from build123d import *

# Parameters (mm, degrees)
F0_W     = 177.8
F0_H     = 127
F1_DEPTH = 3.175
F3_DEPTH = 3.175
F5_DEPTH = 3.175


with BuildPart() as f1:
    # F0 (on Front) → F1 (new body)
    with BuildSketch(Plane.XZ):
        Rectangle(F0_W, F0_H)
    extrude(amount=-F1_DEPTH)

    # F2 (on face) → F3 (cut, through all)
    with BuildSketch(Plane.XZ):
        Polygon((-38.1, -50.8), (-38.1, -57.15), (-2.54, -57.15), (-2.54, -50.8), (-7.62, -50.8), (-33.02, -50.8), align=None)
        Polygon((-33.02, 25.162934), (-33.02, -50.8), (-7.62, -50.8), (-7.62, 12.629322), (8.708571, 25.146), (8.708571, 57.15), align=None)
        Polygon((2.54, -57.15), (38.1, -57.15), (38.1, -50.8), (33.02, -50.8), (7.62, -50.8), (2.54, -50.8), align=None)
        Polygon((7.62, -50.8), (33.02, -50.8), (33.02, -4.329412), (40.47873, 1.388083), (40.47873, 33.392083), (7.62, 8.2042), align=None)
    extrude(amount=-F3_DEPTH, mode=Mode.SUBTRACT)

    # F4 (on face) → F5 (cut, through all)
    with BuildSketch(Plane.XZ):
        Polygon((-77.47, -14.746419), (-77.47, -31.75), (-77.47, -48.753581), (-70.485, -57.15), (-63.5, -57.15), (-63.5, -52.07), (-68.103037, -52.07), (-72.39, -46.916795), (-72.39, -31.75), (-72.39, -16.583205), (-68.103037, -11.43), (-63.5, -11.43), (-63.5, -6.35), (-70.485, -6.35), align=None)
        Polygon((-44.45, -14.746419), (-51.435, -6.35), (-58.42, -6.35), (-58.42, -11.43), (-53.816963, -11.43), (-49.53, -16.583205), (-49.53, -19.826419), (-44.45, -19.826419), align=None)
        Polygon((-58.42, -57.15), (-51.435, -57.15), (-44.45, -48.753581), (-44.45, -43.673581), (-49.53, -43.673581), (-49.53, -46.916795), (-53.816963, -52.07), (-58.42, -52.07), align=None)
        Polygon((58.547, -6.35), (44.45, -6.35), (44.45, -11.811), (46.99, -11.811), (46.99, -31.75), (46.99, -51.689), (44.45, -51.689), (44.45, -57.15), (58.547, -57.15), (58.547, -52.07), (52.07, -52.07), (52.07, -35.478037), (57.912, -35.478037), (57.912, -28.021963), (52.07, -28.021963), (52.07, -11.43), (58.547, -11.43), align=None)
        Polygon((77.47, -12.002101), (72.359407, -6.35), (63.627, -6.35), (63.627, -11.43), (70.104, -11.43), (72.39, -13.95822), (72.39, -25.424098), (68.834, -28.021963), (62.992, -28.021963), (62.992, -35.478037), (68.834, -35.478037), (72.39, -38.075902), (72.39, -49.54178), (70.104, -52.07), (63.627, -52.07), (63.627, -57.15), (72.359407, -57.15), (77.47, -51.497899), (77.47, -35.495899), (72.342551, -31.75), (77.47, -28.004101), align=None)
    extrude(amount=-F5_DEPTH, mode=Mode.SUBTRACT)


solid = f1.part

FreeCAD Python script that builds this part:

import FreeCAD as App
import Part
import Sketcher

V = App.Vector
Q = App.Units.Quantity

doc = App.newDocument("Part")
body = doc.addObject("PartDesign::Body", "Body")

# Sketch on XZ plane
sketch1 = body.newObject("Sketcher::SketchObject", "Sketch")
sketch1.AttachmentSupport = (doc.getObject("XZ_Plane"), [""])
sketch1.MapMode = "FlatFace"
sketch1.addGeometry([
    Part.LineSegment(V(-89, 64, 0), V(-89, -64, 0)),
    Part.LineSegment(V(-89, -64, 0), V(89, -64, 0)),
    Part.LineSegment(V(89, -64, 0), V(89, 64, 0)),
    Part.LineSegment(V(89, 64, 0), V(-89, 64, 0)),
], False)
sketch1.addConstraint([
    Sketcher.Constraint("Coincident", 0, 2, 1, 1),
    Sketcher.Constraint("Coincident", 1, 2, 2, 1),
    Sketcher.Constraint("Coincident", 2, 2, 3, 1),
    Sketcher.Constraint("Coincident", 3, 2, 0, 1),
    Sketcher.Constraint("Vertical", 0),
    Sketcher.Constraint("Horizontal", 1),
    Sketcher.Constraint("Vertical", 2),
    Sketcher.Constraint("Horizontal", 3),
    Sketcher.Constraint("Symmetric", 0, 2, 2, 2, -1, 1),
    Sketcher.Constraint("DistanceX", 1, 1, 1, 2, Q("7 in")),
    Sketcher.Constraint("DistanceY", 0, 2, 0, 1, Q("5 in")),
])
pad1 = body.newObject("PartDesign::Pad", "Pad")
pad1.Profile = sketch1
pad1.Length = Q("0.125 in")
pad1.Reversed = True

# Sketch on XZ plane
sketch2 = body.newObject("Sketcher::SketchObject", "Sketch001")
sketch2.AttachmentSupport = (doc.getObject("XZ_Plane"), [""])
sketch2.MapMode = "FlatFace"
sketch2.addGeometry([
    Part.LineSegment(V(-38, -51, 0), V(-38, -57, 0)),  # 0
    Part.LineSegment(V(-38, -57, 0), V(-3, -57, 0)),  # 1
    Part.LineSegment(V(-3, -57, 0), V(-3, -51, 0)),  # 2
    Part.LineSegment(V(-3, -51, 0), V(-8, -51, 0)),  # 3
    Part.LineSegment(V(-8, -51, 0), V(-8, 13, 0)),  # 4
    Part.LineSegment(V(-8, 13, 0), V(9, 25, 0)),  # 5
    Part.LineSegment(V(9, 25, 0), V(9, 57, 0)),  # 6
    Part.LineSegment(V(9, 57, 0), V(-33, 25, 0)),  # 7
    Part.LineSegment(V(-33, 25, 0), V(-33, -51, 0)),  # 8
    Part.LineSegment(V(-33, -51, 0), V(-38, -51, 0)),  # 9
    Part.LineSegment(V(3, -57, 0), V(38, -57, 0)),  # 10
    Part.LineSegment(V(38, -57, 0), V(38, -51, 0)),  # 11
    Part.LineSegment(V(38, -51, 0), V(33, -51, 0)),  # 12
    Part.LineSegment(V(33, -51, 0), V(33, -4, 0)),  # 13
    Part.LineSegment(V(33, -4, 0), V(40, 1, 0)),  # 14
    Part.LineSegment(V(40, 1, 0), V(40, 33, 0)),  # 15
    Part.LineSegment(V(40, 33, 0), V(8, 8, 0)),  # 16
    Part.LineSegment(V(8, 8, 0), V(8, -51, 0)),  # 17
    Part.LineSegment(V(8, -51, 0), V(3, -51, 0)),  # 18
    Part.LineSegment(V(3, -51, 0), V(3, -57, 0)),  # 19
], False)
sketch2.addConstraint([
    Sketcher.Constraint("Coincident", 0, 2, 1, 1),
    Sketcher.Constraint("Coincident", 1, 2, 2, 1),
    Sketcher.Constraint("Coincident", 2, 2, 3, 1),
    Sketcher.Constraint("Coincident", 3, 2, 4, 1),
    Sketcher.Constraint("Coincident", 4, 2, 5, 1),
    Sketcher.Constraint("Coincident", 5, 2, 6, 1),
    Sketcher.Constraint("Coincident", 6, 2, 7, 1),
    Sketcher.Constraint("Coincident", 7, 2, 8, 1),
    Sketcher.Constraint("Coincident", 8, 2, 9, 1),
    Sketcher.Constraint("Coincident", 9, 2, 0, 1),
    Sketcher.Constraint("Coincident", 10, 2, 11, 1),
    Sketcher.Constraint("Coincident", 11, 2, 12, 1),
    Sketcher.Constraint("Coincident", 12, 2, 13, 1),
    Sketcher.Constraint("Coincident", 13, 2, 14, 1),
    Sketcher.Constraint("Coincident", 14, 2, 15, 1),
    Sketcher.Constraint("Coincident", 15, 2, 16, 1),
    Sketcher.Constraint("Coincident", 16, 2, 17, 1),
    Sketcher.Constraint("Coincident", 17, 2, 18, 1),
    Sketcher.Constraint("Coincident", 18, 2, 19, 1),
    Sketcher.Constraint("Coincident", 19, 2, 10, 1),
    Sketcher.Constraint("Vertical", 0),
    Sketcher.Constraint("Horizontal", 1),
    Sketcher.Constraint("Vertical", 2),
    Sketcher.Constraint("Horizontal", 3),
    Sketcher.Constraint("Vertical", 4),
    Sketcher.Constraint("Vertical", 6),
    Sketcher.Constraint("Vertical", 8),
    Sketcher.Constraint("Horizontal", 9),
    Sketcher.Constraint("Horizontal", 10),
    Sketcher.Constraint("Vertical", 11),
    Sketcher.Constraint("Horizontal", 12),
    Sketcher.Constraint("Vertical", 13),
    Sketcher.Constraint("Vertical", 15),
    Sketcher.Constraint("Vertical", 17),
    Sketcher.Constraint("Horizontal", 18),
    Sketcher.Constraint("Vertical", 19),
    Sketcher.Constraint("Symmetric", 0, 2, 10, 2, -2),
    Sketcher.Constraint("Symmetric", 8, 2, 12, 2, -2),
    Sketcher.Constraint("Symmetric", 3, 2, 17, 2, -2),
    Sketcher.Constraint("Parallel", 5, 7),
    Sketcher.Constraint("Parallel", 7, 14),
    Sketcher.Constraint("Parallel", 14, 16),
    Sketcher.Constraint("Horizontal", 3, 2, 8, 2),
    Sketcher.Constraint("Equal", 3, 9),
    Sketcher.Constraint("Equal", 1, 10),
    Sketcher.Constraint("Equal", 6, 15),
    Sketcher.Constraint("DistanceX", 1, 1, 1, 2, Q("1.4 in")),
    Sketcher.Constraint("DistanceX", 3, 2, 3, 1, Q("0.2 in")),
    Sketcher.Constraint("DistanceY", 2, 2, -1, 1, Q("2 in")),
    Sketcher.Constraint("DistanceX", 0, 2, 10, 2, Q("3 in")),
    Sketcher.Constraint("DistanceY", 0, 2, 0, 1, Q("0.25 in")),
    Sketcher.Constraint("DistanceY", 6, 1, 6, 2, Q("1.26 in")),
    Sketcher.Constraint("DistanceY", 1, 2, 6, 2, Q("4.5 in")),
    Sketcher.Constraint("Distance", 5, Q("0.81 in")),
    Sketcher.Constraint("Distance", 7, Q("2.07 in")),
    Sketcher.Constraint("Distance", 14, Q("0.37 in")),
    Sketcher.Constraint("DistanceY", 17, 2, 17, 1, Q("2.323 in")),
])
pocket1 = body.newObject("PartDesign::Pocket", "Pocket")
pocket1.Profile = sketch2
pocket1.Type = "ThroughAll"

# Sketch on XZ plane
sketch3 = body.newObject("Sketcher::SketchObject", "Sketch002")
sketch3.AttachmentSupport = (doc.getObject("XZ_Plane"), [""])
sketch3.MapMode = "FlatFace"
sketch3.addGeometry([
    Part.LineSegment(V(-77.5, -14.7, 0), V(-77.5, -48.8, 0)),  # 0
    Part.LineSegment(V(-77.5, -48.8, 0), V(-70.5, -57.1, 0)),  # 1
    Part.LineSegment(V(-70.5, -57.1, 0), V(-63.5, -57.1, 0)),  # 2
    Part.LineSegment(V(-63.5, -57.1, 0), V(-63.5, -52.1, 0)),  # 3
    Part.LineSegment(V(-63.5, -52.1, 0), V(-68.1, -52.1, 0)),  # 4
    Part.LineSegment(V(-68.1, -52.1, 0), V(-72.4, -46.9, 0)),  # 5
    Part.LineSegment(V(-72.4, -46.9, 0), V(-72.4, -16.6, 0)),  # 6
    Part.LineSegment(V(-72.4, -16.6, 0), V(-68.1, -11.4, 0)),  # 7
    Part.LineSegment(V(-68.1, -11.4, 0), V(-63.5, -11.4, 0)),  # 8
    Part.LineSegment(V(-63.5, -11.4, 0), V(-63.5, -6.3, 0)),  # 9
    Part.LineSegment(V(-63.5, -6.3, 0), V(-70.5, -6.3, 0)),  # 10
    Part.LineSegment(V(-70.5, -6.3, 0), V(-77.5, -14.7, 0)),  # 11
    Part.LineSegment(V(-44.5, -14.7, 0), V(-51.4, -6.3, 0)),  # 12
    Part.LineSegment(V(-51.4, -6.3, 0), V(-58.4, -6.3, 0)),  # 13
    Part.LineSegment(V(-58.4, -6.3, 0), V(-58.4, -11.4, 0)),  # 14
    Part.LineSegment(V(-58.4, -11.4, 0), V(-53.8, -11.4, 0)),  # 15
    Part.LineSegment(V(-53.8, -11.4, 0), V(-49.5, -16.6, 0)),  # 16
    Part.LineSegment(V(-49.5, -16.6, 0), V(-49.5, -19.8, 0)),  # 17
    Part.LineSegment(V(-49.5, -19.8, 0), V(-44.5, -19.8, 0)),  # 18
    Part.LineSegment(V(-44.5, -19.8, 0), V(-44.5, -14.7, 0)),  # 19
    Part.LineSegment(V(-58.4, -57.1, 0), V(-51.4, -57.1, 0)),  # 20
    Part.LineSegment(V(-51.4, -57.1, 0), V(-44.5, -48.8, 0)),  # 21
    Part.LineSegment(V(-44.5, -48.8, 0), V(-44.5, -43.7, 0)),  # 22
    Part.LineSegment(V(-44.5, -43.7, 0), V(-49.5, -43.7, 0)),  # 23
    Part.LineSegment(V(-49.5, -43.7, 0), V(-49.5, -46.9, 0)),  # 24
    Part.LineSegment(V(-49.5, -46.9, 0), V(-53.8, -52.1, 0)),  # 25
    Part.LineSegment(V(-53.8, -52.1, 0), V(-58.4, -52.1, 0)),  # 26
    Part.LineSegment(V(-58.4, -52.1, 0), V(-58.4, -57.1, 0)),  # 27
    Part.LineSegment(V(58.5, -6.3, 0), V(44.5, -6.3, 0)),  # 28
    Part.LineSegment(V(44.5, -6.3, 0), V(44.5, -11.8, 0)),  # 29
    Part.LineSegment(V(44.5, -11.8, 0), V(47, -11.8, 0)),  # 30
    Part.LineSegment(V(47, -11.8, 0), V(47, -51.7, 0)),  # 31
    Part.LineSegment(V(47, -51.7, 0), V(44.5, -51.7, 0)),  # 32
    Part.LineSegment(V(44.5, -51.7, 0), V(44.5, -57.1, 0)),  # 33
    Part.LineSegment(V(44.5, -57.1, 0), V(58.5, -57.1, 0)),  # 34
    Part.LineSegment(V(58.5, -57.1, 0), V(58.5, -52.1, 0)),  # 35
    Part.LineSegment(V(58.5, -52.1, 0), V(52.1, -52.1, 0)),  # 36
    Part.LineSegment(V(52.1, -52.1, 0), V(52.1, -35.5, 0)),  # 37
    Part.LineSegment(V(52.1, -35.5, 0), V(57.9, -35.5, 0)),  # 38
    Part.LineSegment(V(57.9, -35.5, 0), V(57.9, -28, 0)),  # 39
    Part.LineSegment(V(57.9, -28, 0), V(52.1, -28, 0)),  # 40
    Part.LineSegment(V(52.1, -28, 0), V(52.1, -11.4, 0)),  # 41
    Part.LineSegment(V(52.1, -11.4, 0), V(58.5, -11.4, 0)),  # 42
    Part.LineSegment(V(58.5, -11.4, 0), V(58.5, -6.3, 0)),  # 43
    Part.LineSegment(V(77.5, -12, 0), V(72.4, -6.3, 0)),  # 44
    Part.LineSegment(V(72.4, -6.3, 0), V(63.6, -6.3, 0)),  # 45
    Part.LineSegment(V(63.6, -6.3, 0), V(63.6, -11.4, 0)),  # 46
    Part.LineSegment(V(63.6, -11.4, 0), V(70.1, -11.4, 0)),  # 47
    Part.LineSegment(V(70.1, -11.4, 0), V(72.4, -14, 0)),  # 48
    Part.LineSegment(V(72.4, -14, 0), V(72.4, -25.4, 0)),  # 49
    Part.LineSegment(V(72.4, -25.4, 0), V(68.8, -28, 0)),  # 50
    Part.LineSegment(V(68.8, -28, 0), V(63, -28, 0)),  # 51
    Part.LineSegment(V(63, -28, 0), V(63, -35.5, 0)),  # 52
    Part.LineSegment(V(63, -35.5, 0), V(68.8, -35.5, 0)),  # 53
    Part.LineSegment(V(68.8, -35.5, 0), V(72.4, -38.1, 0)),  # 54
    Part.LineSegment(V(72.4, -38.1, 0), V(72.4, -49.5, 0)),  # 55
    Part.LineSegment(V(72.4, -49.5, 0), V(70.1, -52.1, 0)),  # 56
    Part.LineSegment(V(70.1, -52.1, 0), V(63.6, -52.1, 0)),  # 57
    Part.LineSegment(V(63.6, -52.1, 0), V(63.6, -57.1, 0)),  # 58
    Part.LineSegment(V(63.6, -57.1, 0), V(72.4, -57.1, 0)),  # 59
    Part.LineSegment(V(72.4, -57.1, 0), V(77.5, -51.5, 0)),  # 60
    Part.LineSegment(V(77.5, -51.5, 0), V(77.5, -35.5, 0)),  # 61
    Part.LineSegment(V(77.5, -35.5, 0), V(72.3, -31.8, 0)),  # 62
    Part.LineSegment(V(72.3, -31.8, 0), V(77.5, -28, 0)),  # 63
    Part.LineSegment(V(77.5, -28, 0), V(77.5, -12, 0)),  # 64
], False)
sketch3.addConstraint([
    Sketcher.Constraint("Coincident", 0, 2, 1, 1),
    Sketcher.Constraint("Coincident", 1, 2, 2, 1),
    Sketcher.Constraint("Coincident", 2, 2, 3, 1),
    Sketcher.Constraint("Coincident", 3, 2, 4, 1),
    Sketcher.Constraint("Coincident", 4, 2, 5, 1),
    Sketcher.Constraint("Coincident", 5, 2, 6, 1),
    Sketcher.Constraint("Coincident", 6, 2, 7, 1),
    Sketcher.Constraint("Coincident", 7, 2, 8, 1),
    Sketcher.Constraint("Coincident", 8, 2, 9, 1),
    Sketcher.Constraint("Coincident", 9, 2, 10, 1),
    Sketcher.Constraint("Coincident", 10, 2, 11, 1),
    Sketcher.Constraint("Coincident", 11, 2, 0, 1),
    Sketcher.Constraint("Coincident", 12, 2, 13, 1),
    Sketcher.Constraint("Coincident", 13, 2, 14, 1),
    Sketcher.Constraint("Coincident", 14, 2, 15, 1),
    Sketcher.Constraint("Coincident", 15, 2, 16, 1),
    Sketcher.Constraint("Coincident", 16, 2, 17, 1),
    Sketcher.Constraint("Coincident", 17, 2, 18, 1),
    Sketcher.Constraint("Coincident", 18, 2, 19, 1),
    Sketcher.Constraint("Coincident", 19, 2, 12, 1),
    Sketcher.Constraint("Coincident", 20, 2, 21, 1),
    Sketcher.Constraint("Coincident", 21, 2, 22, 1),
    Sketcher.Constraint("Coincident", 22, 2, 23, 1),
    Sketcher.Constraint("Coincident", 23, 2, 24, 1),
    Sketcher.Constraint("Coincident", 24, 2, 25, 1),
    Sketcher.Constraint("Coincident", 25, 2, 26, 1),
    Sketcher.Constraint("Coincident", 26, 2, 27, 1),
    Sketcher.Constraint("Coincident", 27, 2, 20, 1),
    Sketcher.Constraint("Coincident", 28, 2, 29, 1),
    Sketcher.Constraint("Coincident", 29, 2, 30, 1),
    Sketcher.Constraint("Coincident", 30, 2, 31, 1),
    Sketcher.Constraint("Coincident", 31, 2, 32, 1),
    Sketcher.Constraint("Coincident", 32, 2, 33, 1),
    Sketcher.Constraint("Coincident", 33, 2, 34, 1),
    Sketcher.Constraint("Coincident", 34, 2, 35, 1),
    Sketcher.Constraint("Coincident", 35, 2, 36, 1),
    Sketcher.Constraint("Coincident", 36, 2, 37, 1),
    Sketcher.Constraint("Coincident", 37, 2, 38, 1),
    Sketcher.Constraint("Coincident", 38, 2, 39, 1),
    Sketcher.Constraint("Coincident", 39, 2, 40, 1),
    Sketcher.Constraint("Coincident", 40, 2, 41, 1),
    Sketcher.Constraint("Coincident", 41, 2, 42, 1),
    Sketcher.Constraint("Coincident", 42, 2, 43, 1),
    Sketcher.Constraint("Coincident", 43, 2, 28, 1),
    Sketcher.Constraint("Coincident", 44, 2, 45, 1),
    Sketcher.Constraint("Coincident", 45, 2, 46, 1),
    Sketcher.Constraint("Coincident", 46, 2, 47, 1),
    Sketcher.Constraint("Coincident", 47, 2, 48, 1),
    Sketcher.Constraint("Coincident", 48, 2, 49, 1),
    Sketcher.Constraint("Coincident", 49, 2, 50, 1),
    Sketcher.Constraint("Coincident", 50, 2, 51, 1),
    Sketcher.Constraint("Coincident", 51, 2, 52, 1),
    Sketcher.Constraint("Coincident", 52, 2, 53, 1),
    Sketcher.Constraint("Coincident", 53, 2, 54, 1),
    Sketcher.Constraint("Coincident", 54, 2, 55, 1),
    Sketcher.Constraint("Coincident", 55, 2, 56, 1),
    Sketcher.Constraint("Coincident", 56, 2, 57, 1),
    Sketcher.Constraint("Coincident", 57, 2, 58, 1),
    Sketcher.Constraint("Coincident", 58, 2, 59, 1),
    Sketcher.Constraint("Coincident", 59, 2, 60, 1),
    Sketcher.Constraint("Coincident", 60, 2, 61, 1),
    Sketcher.Constraint("Coincident", 61, 2, 62, 1),
    Sketcher.Constraint("Coincident", 62, 2, 63, 1),
    Sketcher.Constraint("Coincident", 63, 2, 64, 1),
    Sketcher.Constraint("Coincident", 64, 2, 44, 1),
    Sketcher.Constraint("Vertical", 0),
    Sketcher.Constraint("Horizontal", 2),
    Sketcher.Constraint("Vertical", 3),
    Sketcher.Constraint("Horizontal", 4),
    Sketcher.Constraint("Vertical", 6),
    Sketcher.Constraint("Horizontal", 8),
    Sketcher.Constraint("Vertical", 9),
    Sketcher.Constraint("Horizontal", 10),
    Sketcher.Constraint("Horizontal", 13),
    Sketcher.Constraint("Vertical", 14),
    Sketcher.Constraint("Horizontal", 15),
    Sketcher.Constraint("Vertical", 17),
    Sketcher.Constraint("Horizontal", 18),
    Sketcher.Constraint("Vertical", 19),
    Sketcher.Constraint("Horizontal", 20),
    Sketcher.Constraint("Vertical", 22),
    Sketcher.Constraint("Horizontal", 23),
    Sketcher.Constraint("Vertical", 24),
    Sketcher.Constraint("Horizontal", 26),
    Sketcher.Constraint("Vertical", 27),
    Sketcher.Constraint("Horizontal", 28),
    Sketcher.Constraint("Vertical", 29),
    Sketcher.Constraint("Horizontal", 30),
    Sketcher.Constraint("Vertical", 31),
    Sketcher.Constraint("Horizontal", 32),
    Sketcher.Constraint("Vertical", 33),
    Sketcher.Constraint("Horizontal", 34),
    Sketcher.Constraint("Vertical", 35),
    Sketcher.Constraint("Horizontal", 36),
    Sketcher.Constraint("Vertical", 37),
    Sketcher.Constraint("Horizontal", 38),
    Sketcher.Constraint("Vertical", 39),
    Sketcher.Constraint("Horizontal", 40),
    Sketcher.Constraint("Vertical", 41),
    Sketcher.Constraint("Horizontal", 42),
    Sketcher.Constraint("Vertical", 43),
    Sketcher.Constraint("Horizontal", 45),
    Sketcher.Constraint("Vertical", 46),
    Sketcher.Constraint("Horizontal", 47),
    Sketcher.Constraint("Vertical", 49),
    Sketcher.Constraint("Horizontal", 51),
    Sketcher.Constraint("Vertical", 52),
    Sketcher.Constraint("Horizontal", 53),
    Sketcher.Constraint("Vertical", 55),
    Sketcher.Constraint("Horizontal", 57),
    Sketcher.Constraint("Vertical", 58),
    Sketcher.Constraint("Horizontal", 59),
    Sketcher.Constraint("Vertical", 61),
    Sketcher.Constraint("Vertical", 64),
    Sketcher.Constraint("Parallel", 1, 5),
    Sketcher.Constraint("Parallel", 7, 11),
    Sketcher.Constraint("Parallel", 5, 12),
    Sketcher.Constraint("Parallel", 12, 16),
    Sketcher.Constraint("Parallel", 11, 21),
    Sketcher.Constraint("Parallel", 21, 25),
    Sketcher.Constraint("Parallel", 44, 48),
    Sketcher.Constraint("Parallel", 56, 60),
    Sketcher.Constraint("Parallel", 54, 62),
    Sketcher.Constraint("Parallel", 50, 63),
    Sketcher.Constraint("Horizontal", 10, 2, 12, 2),
    Sketcher.Constraint("Horizontal", 8, 2, 14, 2),
    Sketcher.Constraint("Horizontal", 6, 2, 16, 2),
    Sketcher.Constraint("Horizontal", 11, 2, 19, 2),
    Sketcher.Constraint("Horizontal", 2, 2, 20, 2),
    Sketcher.Constraint("Horizontal", 0, 2, 21, 2),
    Sketcher.Constraint("Horizontal", 5, 2, 24, 2),
    Sketcher.Constraint("Horizontal", 4, 2, 25, 2),
    Sketcher.Constraint("Horizontal", 13, 2, 28, 2),
    Sketcher.Constraint("Horizontal", 27, 2, 33, 2),
    Sketcher.Constraint("Horizontal", 26, 2, 35, 2),
    Sketcher.Constraint("Horizontal", 15, 2, 41, 2),
    Sketcher.Constraint("Horizontal", 43, 2, 44, 2),
    Sketcher.Constraint("Horizontal", 42, 2, 46, 2),
    Sketcher.Constraint("Horizontal", 40, 2, 50, 2),
    Sketcher.Constraint("Horizontal", 38, 2, 52, 2),
    Sketcher.Constraint("Horizontal", 36, 2, 56, 2),
    Sketcher.Constraint("Horizontal", 34, 2, 58, 2),
    Sketcher.Constraint("Vertical", 4, 2, 7, 2),
    Sketcher.Constraint("Vertical", 3, 2, 8, 2),
    Sketcher.Constraint("Vertical", 1, 2, 10, 2),
    Sketcher.Constraint("Vertical", 12, 2, 20, 2),
    Sketcher.Constraint("Vertical", 19, 2, 21, 2),
    Sketcher.Constraint("Vertical", 17, 2, 23, 2),
    Sketcher.Constraint("Vertical", 14, 2, 26, 2),
    Sketcher.Constraint("Vertical", 29, 2, 32, 2),
    Sketcher.Constraint("Vertical", 37, 2, 40, 2),
    Sketcher.Constraint("Vertical", 35, 2, 42, 2),
    Sketcher.Constraint("Vertical", 50, 2, 53, 2),
    Sketcher.Constraint("Vertical", 49, 2, 54, 2),
    Sketcher.Constraint("Vertical", 47, 2, 56, 2),
    Sketcher.Constraint("Vertical", 46, 2, 57, 2),
    Sketcher.Constraint("Vertical", 44, 2, 59, 2),
    Sketcher.Constraint("Vertical", 61, 2, 63, 2),
    Sketcher.Constraint("Equal", 10, 13),
    Sketcher.Constraint("Equal", 8, 15),
    Sketcher.Constraint("Equal", 42, 47),
    Sketcher.Constraint("Equal", 40, 51),
    Sketcher.Constraint("Equal", 23, 3),
    Sketcher.Constraint("Equal", 3, 9),
    Sketcher.Constraint("Equal", 14, 19),
    Sketcher.Constraint("Equal", 19, 22),
    Sketcher.Constraint("Equal", 29, 33),
    Sketcher.Constraint("Equal", 37, 41),
    Sketcher.Constraint("Equal", 49, 55),
    Sketcher.Constraint("Equal", 61, 64),
    Sketcher.Constraint("Equal", 50, 54),
    Sketcher.Constraint("DistanceX", 18, 1, 18, 2, Q("0.2 in")),
    Sketcher.Constraint("DistanceX", 30, 1, 30, 2, Q("0.1 in")),
    Sketcher.Constraint("Distance", 44, Q("0.3 in")),
    Sketcher.Constraint("DistanceX", 38, 1, 38, 2, Q("0.23 in")),
    Sketcher.Constraint("DistanceY", 31, 2, 31, 1, Q("1.57 in")),
    Sketcher.Constraint("DistanceY", 61, 1, 61, 2, Q("0.63 in")),
    Sketcher.Constraint("DistanceX", 2, 2, -1, 1, Q("2.5 in")),
    Sketcher.Constraint("DistanceX", 13, 2, -1, 1, Q("2.3 in")),
    Sketcher.Constraint("Distance", 1, Q("0.43 in")),
    Sketcher.Constraint("Distance", 62, Q("0.25 in")),
    Sketcher.Constraint("DistanceX", 2, 1, 2, 2, Q("0.275 in")),
    Sketcher.Constraint("DistanceX", 28, 2, 28, 1, Q("0.555 in")),
    Sketcher.Constraint("DistanceX", 36, 2, 36, 1, Q("0.255 in")),
    Sketcher.Constraint("DistanceY", 29, 2, 29, 1, Q("0.215 in")),
    Sketcher.Constraint("DistanceX", 0, 2, -1, 1, Q("3.05 in")),
    Sketcher.Constraint("DistanceY", 1, 2, -1, 1, Q("2.25 in")),
    Sketcher.Constraint("DistanceX", -1, 1, 28, 2, Q("1.75 in")),
    Sketcher.Constraint("DistanceX", -1, 1, 47, 2, Q("2.76 in")),
    Sketcher.Constraint("DistanceX", -1, 1, 48, 2, Q("2.85 in")),
    Sketcher.Constraint("DistanceX", -1, 1, 50, 2, Q("2.71 in")),
    Sketcher.Constraint("DistanceX", -1, 1, 60, 2, Q("3.05 in")),
    Sketcher.Constraint("DistanceY", 6, 1, 6, 2, Q("30.33359 mm")),
    Sketcher.Constraint("DistanceY", 55, 2, 55, 1, Q("11.465878 mm")),
    Sketcher.Constraint("DistanceY", 49, 2, -1, 1, Q("25.424098 mm")),
])
pocket2 = body.newObject("PartDesign::Pocket", "Pocket001")
pocket2.Profile = sketch3
pocket2.Type = "ThroughAll"

doc.recompute()
